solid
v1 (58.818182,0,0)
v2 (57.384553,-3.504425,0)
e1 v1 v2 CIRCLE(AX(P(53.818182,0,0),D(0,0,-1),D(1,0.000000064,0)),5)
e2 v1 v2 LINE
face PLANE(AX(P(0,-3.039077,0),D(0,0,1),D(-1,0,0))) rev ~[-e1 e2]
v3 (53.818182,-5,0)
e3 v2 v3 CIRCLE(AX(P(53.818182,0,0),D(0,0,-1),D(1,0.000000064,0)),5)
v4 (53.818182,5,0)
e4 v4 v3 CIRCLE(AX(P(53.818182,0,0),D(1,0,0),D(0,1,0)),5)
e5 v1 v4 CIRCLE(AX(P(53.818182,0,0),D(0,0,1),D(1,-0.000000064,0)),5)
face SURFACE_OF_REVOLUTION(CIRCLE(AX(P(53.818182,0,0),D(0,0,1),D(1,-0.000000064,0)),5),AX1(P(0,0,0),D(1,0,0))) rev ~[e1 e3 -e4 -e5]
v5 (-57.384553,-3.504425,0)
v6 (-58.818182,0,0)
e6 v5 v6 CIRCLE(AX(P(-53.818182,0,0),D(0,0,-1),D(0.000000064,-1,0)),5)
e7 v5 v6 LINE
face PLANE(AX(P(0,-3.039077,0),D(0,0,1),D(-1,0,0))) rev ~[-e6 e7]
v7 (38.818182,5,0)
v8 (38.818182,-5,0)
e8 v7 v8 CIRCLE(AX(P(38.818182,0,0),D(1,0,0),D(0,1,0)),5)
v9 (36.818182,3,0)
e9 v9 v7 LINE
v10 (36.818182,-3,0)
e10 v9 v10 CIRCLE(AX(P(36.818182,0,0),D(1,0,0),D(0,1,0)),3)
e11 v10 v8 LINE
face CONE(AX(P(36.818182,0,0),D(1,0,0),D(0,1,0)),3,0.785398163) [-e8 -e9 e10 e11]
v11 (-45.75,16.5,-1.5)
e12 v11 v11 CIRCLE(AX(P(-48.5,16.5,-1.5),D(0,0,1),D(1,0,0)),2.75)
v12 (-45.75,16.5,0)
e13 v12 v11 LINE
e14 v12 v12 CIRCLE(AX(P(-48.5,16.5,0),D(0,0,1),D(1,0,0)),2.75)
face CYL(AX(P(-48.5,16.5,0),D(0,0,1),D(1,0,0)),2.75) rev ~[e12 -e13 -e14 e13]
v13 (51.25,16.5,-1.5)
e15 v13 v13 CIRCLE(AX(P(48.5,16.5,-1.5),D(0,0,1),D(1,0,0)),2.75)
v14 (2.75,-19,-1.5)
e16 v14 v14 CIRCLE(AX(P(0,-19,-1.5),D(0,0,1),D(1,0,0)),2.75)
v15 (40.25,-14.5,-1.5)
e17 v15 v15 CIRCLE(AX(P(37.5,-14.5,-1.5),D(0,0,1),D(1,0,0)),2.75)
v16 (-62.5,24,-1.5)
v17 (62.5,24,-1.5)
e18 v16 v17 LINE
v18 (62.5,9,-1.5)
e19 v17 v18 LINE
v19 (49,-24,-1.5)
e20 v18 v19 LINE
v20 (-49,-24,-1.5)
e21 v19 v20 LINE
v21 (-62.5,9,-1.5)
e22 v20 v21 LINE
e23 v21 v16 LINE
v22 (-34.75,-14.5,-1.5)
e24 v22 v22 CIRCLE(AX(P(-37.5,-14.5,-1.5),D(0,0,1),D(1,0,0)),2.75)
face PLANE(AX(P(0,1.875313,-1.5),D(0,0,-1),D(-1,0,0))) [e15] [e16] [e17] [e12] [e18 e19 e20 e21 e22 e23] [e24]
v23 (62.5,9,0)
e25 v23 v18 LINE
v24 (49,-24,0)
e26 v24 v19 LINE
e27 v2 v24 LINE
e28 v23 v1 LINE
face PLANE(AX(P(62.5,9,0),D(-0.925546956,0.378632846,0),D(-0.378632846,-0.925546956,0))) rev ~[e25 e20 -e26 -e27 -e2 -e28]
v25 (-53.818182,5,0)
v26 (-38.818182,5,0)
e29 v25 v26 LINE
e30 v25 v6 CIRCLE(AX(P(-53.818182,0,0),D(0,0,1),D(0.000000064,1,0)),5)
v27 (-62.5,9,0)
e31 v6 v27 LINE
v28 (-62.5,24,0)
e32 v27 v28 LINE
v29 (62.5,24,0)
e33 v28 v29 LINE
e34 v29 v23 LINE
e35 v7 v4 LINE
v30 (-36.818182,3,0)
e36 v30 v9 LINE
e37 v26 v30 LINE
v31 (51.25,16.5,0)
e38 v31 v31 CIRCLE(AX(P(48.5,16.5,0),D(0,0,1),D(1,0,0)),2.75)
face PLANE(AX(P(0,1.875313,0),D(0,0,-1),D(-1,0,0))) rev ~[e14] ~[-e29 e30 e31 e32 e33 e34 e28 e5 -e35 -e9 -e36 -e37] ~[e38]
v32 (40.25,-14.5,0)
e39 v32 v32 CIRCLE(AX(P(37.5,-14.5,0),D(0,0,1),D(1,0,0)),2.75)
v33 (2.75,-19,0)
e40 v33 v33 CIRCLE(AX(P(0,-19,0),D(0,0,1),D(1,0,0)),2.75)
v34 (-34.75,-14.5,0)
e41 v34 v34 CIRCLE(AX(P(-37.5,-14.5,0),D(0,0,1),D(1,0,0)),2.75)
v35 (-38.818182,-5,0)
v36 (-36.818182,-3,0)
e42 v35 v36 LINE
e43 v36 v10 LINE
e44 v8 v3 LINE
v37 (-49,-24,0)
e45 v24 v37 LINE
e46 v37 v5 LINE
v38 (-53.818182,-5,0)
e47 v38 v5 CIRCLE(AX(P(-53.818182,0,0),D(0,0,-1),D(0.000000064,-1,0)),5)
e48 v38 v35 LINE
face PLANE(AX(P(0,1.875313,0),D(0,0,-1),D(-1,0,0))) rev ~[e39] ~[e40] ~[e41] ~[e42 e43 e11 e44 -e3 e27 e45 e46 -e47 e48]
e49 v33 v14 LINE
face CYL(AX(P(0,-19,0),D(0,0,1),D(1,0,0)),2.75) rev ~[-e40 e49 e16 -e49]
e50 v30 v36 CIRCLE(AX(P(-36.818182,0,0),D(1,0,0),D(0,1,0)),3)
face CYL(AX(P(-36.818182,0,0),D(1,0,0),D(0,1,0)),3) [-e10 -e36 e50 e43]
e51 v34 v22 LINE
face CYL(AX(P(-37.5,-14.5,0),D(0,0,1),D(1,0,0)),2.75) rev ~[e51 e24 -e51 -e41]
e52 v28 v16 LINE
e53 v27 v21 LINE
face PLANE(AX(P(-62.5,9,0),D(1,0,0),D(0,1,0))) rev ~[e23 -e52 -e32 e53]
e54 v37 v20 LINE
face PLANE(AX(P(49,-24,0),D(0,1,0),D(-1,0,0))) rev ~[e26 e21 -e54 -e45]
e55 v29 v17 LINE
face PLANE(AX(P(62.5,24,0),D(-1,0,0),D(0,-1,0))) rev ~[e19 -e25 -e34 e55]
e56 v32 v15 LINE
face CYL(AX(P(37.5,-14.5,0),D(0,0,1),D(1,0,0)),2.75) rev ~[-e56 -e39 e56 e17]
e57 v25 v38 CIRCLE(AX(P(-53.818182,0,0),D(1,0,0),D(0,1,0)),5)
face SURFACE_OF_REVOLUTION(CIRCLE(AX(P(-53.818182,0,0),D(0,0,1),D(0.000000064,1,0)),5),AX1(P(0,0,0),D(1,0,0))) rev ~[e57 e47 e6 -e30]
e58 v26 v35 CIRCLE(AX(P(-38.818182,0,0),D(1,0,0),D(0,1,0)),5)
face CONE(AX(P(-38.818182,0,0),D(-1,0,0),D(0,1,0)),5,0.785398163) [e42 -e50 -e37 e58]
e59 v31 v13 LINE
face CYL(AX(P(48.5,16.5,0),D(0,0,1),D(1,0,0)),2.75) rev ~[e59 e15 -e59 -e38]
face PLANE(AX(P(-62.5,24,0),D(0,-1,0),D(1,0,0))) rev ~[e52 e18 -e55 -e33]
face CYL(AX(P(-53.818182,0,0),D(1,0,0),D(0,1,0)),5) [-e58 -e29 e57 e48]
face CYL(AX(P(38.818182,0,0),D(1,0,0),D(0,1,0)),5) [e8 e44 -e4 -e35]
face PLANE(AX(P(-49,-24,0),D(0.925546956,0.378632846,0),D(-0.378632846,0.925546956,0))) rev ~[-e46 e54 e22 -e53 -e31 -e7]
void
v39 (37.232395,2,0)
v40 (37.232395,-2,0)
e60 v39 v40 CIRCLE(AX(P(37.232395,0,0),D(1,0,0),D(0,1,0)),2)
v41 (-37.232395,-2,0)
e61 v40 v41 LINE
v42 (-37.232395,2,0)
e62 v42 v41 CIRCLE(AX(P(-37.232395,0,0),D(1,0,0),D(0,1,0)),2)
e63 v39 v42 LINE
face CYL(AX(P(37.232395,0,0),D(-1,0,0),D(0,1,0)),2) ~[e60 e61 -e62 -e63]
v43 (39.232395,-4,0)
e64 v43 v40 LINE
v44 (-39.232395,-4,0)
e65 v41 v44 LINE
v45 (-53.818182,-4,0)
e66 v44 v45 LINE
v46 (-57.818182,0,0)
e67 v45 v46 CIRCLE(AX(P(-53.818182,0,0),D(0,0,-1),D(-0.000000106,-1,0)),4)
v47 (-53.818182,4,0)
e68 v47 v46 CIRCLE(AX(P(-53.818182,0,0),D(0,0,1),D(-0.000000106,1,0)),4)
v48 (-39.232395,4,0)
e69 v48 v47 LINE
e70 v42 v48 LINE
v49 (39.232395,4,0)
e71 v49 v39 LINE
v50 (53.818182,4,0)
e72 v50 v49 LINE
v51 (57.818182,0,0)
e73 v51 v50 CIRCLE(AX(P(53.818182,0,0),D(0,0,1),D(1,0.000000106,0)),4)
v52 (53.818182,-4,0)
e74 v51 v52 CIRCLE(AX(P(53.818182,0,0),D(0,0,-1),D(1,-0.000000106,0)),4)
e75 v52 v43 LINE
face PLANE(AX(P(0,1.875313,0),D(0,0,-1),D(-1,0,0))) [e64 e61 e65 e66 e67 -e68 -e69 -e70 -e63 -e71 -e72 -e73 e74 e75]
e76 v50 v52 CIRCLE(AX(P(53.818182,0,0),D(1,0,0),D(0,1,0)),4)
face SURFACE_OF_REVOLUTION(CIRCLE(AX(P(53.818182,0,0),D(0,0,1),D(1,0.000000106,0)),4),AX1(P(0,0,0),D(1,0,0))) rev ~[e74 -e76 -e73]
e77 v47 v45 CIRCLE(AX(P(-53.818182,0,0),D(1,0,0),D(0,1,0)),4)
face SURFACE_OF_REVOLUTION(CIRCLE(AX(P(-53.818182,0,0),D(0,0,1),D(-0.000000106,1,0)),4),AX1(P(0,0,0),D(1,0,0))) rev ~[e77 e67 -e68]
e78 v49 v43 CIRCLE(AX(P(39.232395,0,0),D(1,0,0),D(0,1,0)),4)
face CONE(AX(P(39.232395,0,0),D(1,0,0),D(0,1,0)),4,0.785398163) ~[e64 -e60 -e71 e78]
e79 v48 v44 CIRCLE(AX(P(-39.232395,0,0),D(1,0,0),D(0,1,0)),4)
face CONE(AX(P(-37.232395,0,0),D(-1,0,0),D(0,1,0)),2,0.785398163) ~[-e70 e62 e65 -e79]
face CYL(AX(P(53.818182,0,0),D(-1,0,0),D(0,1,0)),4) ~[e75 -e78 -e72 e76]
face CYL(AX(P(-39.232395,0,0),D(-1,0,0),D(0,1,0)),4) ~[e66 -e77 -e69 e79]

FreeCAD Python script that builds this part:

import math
import FreeCAD as App
import Part
import Sketcher
Q = App.Units.Quantity

doc = App.newDocument("Part")
body = doc.addObject("PartDesign::Body", "Body")

sketch1 = body.newObject("Sketcher::SketchObject", "Sketch")
sketch1.AttachmentSupport = (doc.getObject("XY_Plane"), [""])
sketch1.MapMode = "FlatFace"
sketch1.addGeometry([
    Part.LineSegment(App.Vector(62.5, 24, 0), App.Vector(-62.5, 24, 0)),
    Part.LineSegment(App.Vector(-62.5, 24, 0), App.Vector(-62.5, 9, 0)),
    Part.LineSegment(App.Vector(-62.5, 9, 0), App.Vector(-49, -24, 0)),
    Part.LineSegment(App.Vector(-49, -24, 0), App.Vector(49, -24, 0)),
    Part.LineSegment(App.Vector(49, -24, 0), App.Vector(62.5, 9, 0)),
    Part.LineSegment(App.Vector(62.5, 9, 0), App.Vector(62.5, 24, 0)),
    Part.Circle(App.Vector(37.5, -14.5, 0), App.Vector(0, 0, 1), 2.75),
    Part.Circle(App.Vector(0, -19, 0), App.Vector(0, 0, 1), 2.75),
    Part.Circle(App.Vector(-37.5, -14.5, 0), App.Vector(0, 0, 1), 2.75),
    Part.Circle(App.Vector(48.5, 16.5, 0), App.Vector(0, 0, 1), 2.75),
    Part.Circle(App.Vector(-48.5, 16.5, 0), App.Vector(0, 0, 1), 2.75),
], False)
sketch1.addConstraint([
    Sketcher.Constraint("Coincident", 0, 2, 1, 1),
    Sketcher.Constraint("Coincident", 1, 2, 2, 1),
    Sketcher.Constraint("Coincident", 2, 2, 3, 1),
    Sketcher.Constraint("Coincident", 3, 2, 4, 1),
    Sketcher.Constraint("Coincident", 4, 2, 5, 1),
    Sketcher.Constraint("Coincident", 5, 2, 0, 1),
    Sketcher.Constraint("Horizontal", 0),
    Sketcher.Constraint("Vertical", 1),
    Sketcher.Constraint("Horizontal", 3),
    Sketcher.Constraint("Vertical", 5),
    Sketcher.Constraint("Equal", 6, 7),
    Sketcher.Constraint("Equal", 7, 8),
    Sketcher.Constraint("Equal", 8, 9),
    Sketcher.Constraint("Equal", 9, 10),
    Sketcher.Constraint("Symmetric", 6, 3, 8, 3, -2),
    Sketcher.Constraint("Symmetric", 9, 3, 10, 3, -2),
    Sketcher.Constraint("Symmetric", 1, 2, 4, 2, -2),
    Sketcher.Constraint("PointOnObject", 7, 3, -2),
    Sketcher.Constraint("Equal", 2, 4),
    Sketcher.Constraint("Diameter", 6, Q("5.5 mm")),
    Sketcher.Constraint("DistanceX", 0, 2, 0, 1, Q("125 mm")),
    Sketcher.Constraint("DistanceX", 3, 1, 3, 2, Q("98 mm")),
    Sketcher.Constraint("DistanceY", 1, 2, 1, 1, Q("15 mm")),
    Sketcher.Constraint("DistanceY", 7, 3, -1, 1, Q("19 mm")),
    Sketcher.Constraint("DistanceY", -1, 1, 0, 2, Q("24 mm")),
    Sketcher.Constraint("DistanceY", 2, 2, -1, 1, Q("24 mm")),
    Sketcher.Constraint("DistanceX", 8, 3, 6, 3, Q("75 mm")),
    Sketcher.Constraint("DistanceX", 6, 3, 9, 3, Q("11 mm")),
    Sketcher.Constraint("DistanceY", 6, 3, 9, 3, Q("31 mm")),
    Sketcher.Constraint("DistanceY", 6, 3, -1, 1, Q("14.5 mm")),
])
pad1 = body.newObject("PartDesign::Pad", "Pad")
pad1.Profile = sketch1
pad1.Length = 1.5
pad1.Reversed = True

sketch2 = body.newObject("Sketcher::SketchObject", "Sketch001")
sketch2.AttachmentSupport = (doc.getObject("XY_Plane"), [""])
sketch2.MapMode = "FlatFace"
sketch2.addGeometry([
    Part.LineSegment(App.Vector(-38.818182, 5, 0), App.Vector(-53.818182, 5, 0)),
    Part.ArcOfCircle(Part.Circle(App.Vector(-53.818182, 0, 0), App.Vector(0, 0, 1), 5), math.radians(89.999996), math.radians(180.000004)),
    Part.LineSegment(App.Vector(-58.818182, 0, 0), App.Vector(-57.818182, 0, 0)),
    Part.ArcOfCircle(Part.Circle(App.Vector(-53.818182, 0, 0), App.Vector(0, 0, 1), 4), math.radians(90.000006), math.radians(179.999994)),
    Part.LineSegment(App.Vector(-53.818182, 4, 0), App.Vector(-39.232395, 4, 0)),
    Part.LineSegment(App.Vector(-39.232395, 4, 0), App.Vector(-37.232395, 2, 0)),
    Part.LineSegment(App.Vector(-37.232395, 2, 0), App.Vector(37.232395, 2, 0)),
    Part.LineSegment(App.Vector(37.232395, 2, 0), App.Vector(39.232395, 4, 0)),
    Part.LineSegment(App.Vector(39.232395, 4, 0), App.Vector(53.818182, 4, 0)),
    Part.ArcOfCircle(Part.Circle(App.Vector(53.818182, 0, 0), App.Vector(0, 0, 1), 4), math.radians(0.000006), math.radians(89.999994)),
    Part.LineSegment(App.Vector(57.818182, 0, 0), App.Vector(58.818182, 0, 0)),
    Part.ArcOfCircle(Part.Circle(App.Vector(53.818182, 0, 0), App.Vector(0, 0, 1), 5), math.radians(-0.000004), math.radians(90.000004)),
    Part.LineSegment(App.Vector(53.818182, 5, 0), App.Vector(38.818182, 5, 0)),
    Part.LineSegment(App.Vector(38.818182, 5, 0), App.Vector(36.818182, 3, 0)),
    Part.LineSegment(App.Vector(36.818182, 3, 0), App.Vector(-36.818182, 3, 0)),
    Part.LineSegment(App.Vector(-36.818182, 3, 0), App.Vector(-38.818182, 5, 0)),
], False)
sketch2.addConstraint([
    Sketcher.Constraint("Tangent", 0, 2, 1, 1),
    Sketcher.Constraint("Coincident", 1, 2, 2, 1),
    Sketcher.Constraint("Coincident", 2, 2, 3, 2),
    Sketcher.Constraint("Tangent", 3, 1, 4, 1),
    Sketcher.Constraint("Coincident", 4, 2, 5, 1),
    Sketcher.Constraint("Coincident", 5, 2, 6, 1),
    Sketcher.Constraint("Coincident", 6, 2, 7, 1),
    Sketcher.Constraint("Coincident", 7, 2, 8, 1),
    Sketcher.Constraint("Tangent", 8, 2, 9, 2),
    Sketcher.Constraint("Coincident", 9, 1, 10, 1),
    Sketcher.Constraint("Coincident", 10, 2, 11, 1),
    Sketcher.Constraint("Tangent", 11, 2, 12, 1),
    Sketcher.Constraint("Coincident", 12, 2, 13, 1),
    Sketcher.Constraint("Coincident", 13, 2, 14, 1),
    Sketcher.Constraint("Coincident", 14, 2, 15, 1),
    Sketcher.Constraint("Coincident", 15, 2, 0, 1),
    Sketcher.Constraint("Horizontal", 0),
    Sketcher.Constraint("Horizontal", 2),
    Sketcher.Constraint("Horizontal", 4),
    Sketcher.Constraint("Horizontal", 6),
    Sketcher.Constraint("Horizontal", 8),
    Sketcher.Constraint("Horizontal", 10),
    Sketcher.Constraint("Horizontal", 12),
    Sketcher.Constraint("Horizontal", 14),
    Sketcher.Constraint("Coincident", 3, 3, 1, 3),
    Sketcher.Constraint("Coincident", 11, 3, 9, 3),
    Sketcher.Constraint("Equal", 3, 9),
    Sketcher.Constraint("Equal", 1, 11),
    Sketcher.Constraint("Symmetric", 1, 3, 9, 3, -1, 1),
    Sketcher.Constraint("Symmetric", 4, 2, 7, 2, -2),
    Sketcher.Constraint("PointOnObject", 1, 2, -1),
    Sketcher.Constraint("PointOnObject", 9, 1, -1),
    Sketcher.Constraint("Perpendicular", 5, 7),
    Sketcher.Constraint("Parallel", 7, 13),
    Sketcher.Constraint("Perpendicular", 13, 15),
    Sketcher.Constraint("Equal", 0, 12),
    Sketcher.Constraint("Equal", 5, 7),
    Sketcher.Constraint("Equal", 7, 13),
    Sketcher.Constraint("Radius", 1, Q("5 mm")),
    Sketcher.Constraint("Radius", 3, Q("4 mm")),
    Sketcher.Constraint("DistanceX", 0, 2, 0, 1, Q("15 mm")),
    Sketcher.Constraint("DistanceY", -1, 1, 5, 2, Q("2 mm")),
    Sketcher.Constraint("DistanceX", 6, 1, 6, 2, Q("74.46479 mm")),
    Sketcher.Constraint("DistanceX", 4, 1, 4, 2, Q("14.585787 mm")),
])
revolution = body.newObject("PartDesign::Revolution", "Revolution")
revolution.Profile = sketch2
revolution.ReferenceAxis = (sketch2, ["H_Axis"])
revolution.Angle = 180

doc.recompute()
